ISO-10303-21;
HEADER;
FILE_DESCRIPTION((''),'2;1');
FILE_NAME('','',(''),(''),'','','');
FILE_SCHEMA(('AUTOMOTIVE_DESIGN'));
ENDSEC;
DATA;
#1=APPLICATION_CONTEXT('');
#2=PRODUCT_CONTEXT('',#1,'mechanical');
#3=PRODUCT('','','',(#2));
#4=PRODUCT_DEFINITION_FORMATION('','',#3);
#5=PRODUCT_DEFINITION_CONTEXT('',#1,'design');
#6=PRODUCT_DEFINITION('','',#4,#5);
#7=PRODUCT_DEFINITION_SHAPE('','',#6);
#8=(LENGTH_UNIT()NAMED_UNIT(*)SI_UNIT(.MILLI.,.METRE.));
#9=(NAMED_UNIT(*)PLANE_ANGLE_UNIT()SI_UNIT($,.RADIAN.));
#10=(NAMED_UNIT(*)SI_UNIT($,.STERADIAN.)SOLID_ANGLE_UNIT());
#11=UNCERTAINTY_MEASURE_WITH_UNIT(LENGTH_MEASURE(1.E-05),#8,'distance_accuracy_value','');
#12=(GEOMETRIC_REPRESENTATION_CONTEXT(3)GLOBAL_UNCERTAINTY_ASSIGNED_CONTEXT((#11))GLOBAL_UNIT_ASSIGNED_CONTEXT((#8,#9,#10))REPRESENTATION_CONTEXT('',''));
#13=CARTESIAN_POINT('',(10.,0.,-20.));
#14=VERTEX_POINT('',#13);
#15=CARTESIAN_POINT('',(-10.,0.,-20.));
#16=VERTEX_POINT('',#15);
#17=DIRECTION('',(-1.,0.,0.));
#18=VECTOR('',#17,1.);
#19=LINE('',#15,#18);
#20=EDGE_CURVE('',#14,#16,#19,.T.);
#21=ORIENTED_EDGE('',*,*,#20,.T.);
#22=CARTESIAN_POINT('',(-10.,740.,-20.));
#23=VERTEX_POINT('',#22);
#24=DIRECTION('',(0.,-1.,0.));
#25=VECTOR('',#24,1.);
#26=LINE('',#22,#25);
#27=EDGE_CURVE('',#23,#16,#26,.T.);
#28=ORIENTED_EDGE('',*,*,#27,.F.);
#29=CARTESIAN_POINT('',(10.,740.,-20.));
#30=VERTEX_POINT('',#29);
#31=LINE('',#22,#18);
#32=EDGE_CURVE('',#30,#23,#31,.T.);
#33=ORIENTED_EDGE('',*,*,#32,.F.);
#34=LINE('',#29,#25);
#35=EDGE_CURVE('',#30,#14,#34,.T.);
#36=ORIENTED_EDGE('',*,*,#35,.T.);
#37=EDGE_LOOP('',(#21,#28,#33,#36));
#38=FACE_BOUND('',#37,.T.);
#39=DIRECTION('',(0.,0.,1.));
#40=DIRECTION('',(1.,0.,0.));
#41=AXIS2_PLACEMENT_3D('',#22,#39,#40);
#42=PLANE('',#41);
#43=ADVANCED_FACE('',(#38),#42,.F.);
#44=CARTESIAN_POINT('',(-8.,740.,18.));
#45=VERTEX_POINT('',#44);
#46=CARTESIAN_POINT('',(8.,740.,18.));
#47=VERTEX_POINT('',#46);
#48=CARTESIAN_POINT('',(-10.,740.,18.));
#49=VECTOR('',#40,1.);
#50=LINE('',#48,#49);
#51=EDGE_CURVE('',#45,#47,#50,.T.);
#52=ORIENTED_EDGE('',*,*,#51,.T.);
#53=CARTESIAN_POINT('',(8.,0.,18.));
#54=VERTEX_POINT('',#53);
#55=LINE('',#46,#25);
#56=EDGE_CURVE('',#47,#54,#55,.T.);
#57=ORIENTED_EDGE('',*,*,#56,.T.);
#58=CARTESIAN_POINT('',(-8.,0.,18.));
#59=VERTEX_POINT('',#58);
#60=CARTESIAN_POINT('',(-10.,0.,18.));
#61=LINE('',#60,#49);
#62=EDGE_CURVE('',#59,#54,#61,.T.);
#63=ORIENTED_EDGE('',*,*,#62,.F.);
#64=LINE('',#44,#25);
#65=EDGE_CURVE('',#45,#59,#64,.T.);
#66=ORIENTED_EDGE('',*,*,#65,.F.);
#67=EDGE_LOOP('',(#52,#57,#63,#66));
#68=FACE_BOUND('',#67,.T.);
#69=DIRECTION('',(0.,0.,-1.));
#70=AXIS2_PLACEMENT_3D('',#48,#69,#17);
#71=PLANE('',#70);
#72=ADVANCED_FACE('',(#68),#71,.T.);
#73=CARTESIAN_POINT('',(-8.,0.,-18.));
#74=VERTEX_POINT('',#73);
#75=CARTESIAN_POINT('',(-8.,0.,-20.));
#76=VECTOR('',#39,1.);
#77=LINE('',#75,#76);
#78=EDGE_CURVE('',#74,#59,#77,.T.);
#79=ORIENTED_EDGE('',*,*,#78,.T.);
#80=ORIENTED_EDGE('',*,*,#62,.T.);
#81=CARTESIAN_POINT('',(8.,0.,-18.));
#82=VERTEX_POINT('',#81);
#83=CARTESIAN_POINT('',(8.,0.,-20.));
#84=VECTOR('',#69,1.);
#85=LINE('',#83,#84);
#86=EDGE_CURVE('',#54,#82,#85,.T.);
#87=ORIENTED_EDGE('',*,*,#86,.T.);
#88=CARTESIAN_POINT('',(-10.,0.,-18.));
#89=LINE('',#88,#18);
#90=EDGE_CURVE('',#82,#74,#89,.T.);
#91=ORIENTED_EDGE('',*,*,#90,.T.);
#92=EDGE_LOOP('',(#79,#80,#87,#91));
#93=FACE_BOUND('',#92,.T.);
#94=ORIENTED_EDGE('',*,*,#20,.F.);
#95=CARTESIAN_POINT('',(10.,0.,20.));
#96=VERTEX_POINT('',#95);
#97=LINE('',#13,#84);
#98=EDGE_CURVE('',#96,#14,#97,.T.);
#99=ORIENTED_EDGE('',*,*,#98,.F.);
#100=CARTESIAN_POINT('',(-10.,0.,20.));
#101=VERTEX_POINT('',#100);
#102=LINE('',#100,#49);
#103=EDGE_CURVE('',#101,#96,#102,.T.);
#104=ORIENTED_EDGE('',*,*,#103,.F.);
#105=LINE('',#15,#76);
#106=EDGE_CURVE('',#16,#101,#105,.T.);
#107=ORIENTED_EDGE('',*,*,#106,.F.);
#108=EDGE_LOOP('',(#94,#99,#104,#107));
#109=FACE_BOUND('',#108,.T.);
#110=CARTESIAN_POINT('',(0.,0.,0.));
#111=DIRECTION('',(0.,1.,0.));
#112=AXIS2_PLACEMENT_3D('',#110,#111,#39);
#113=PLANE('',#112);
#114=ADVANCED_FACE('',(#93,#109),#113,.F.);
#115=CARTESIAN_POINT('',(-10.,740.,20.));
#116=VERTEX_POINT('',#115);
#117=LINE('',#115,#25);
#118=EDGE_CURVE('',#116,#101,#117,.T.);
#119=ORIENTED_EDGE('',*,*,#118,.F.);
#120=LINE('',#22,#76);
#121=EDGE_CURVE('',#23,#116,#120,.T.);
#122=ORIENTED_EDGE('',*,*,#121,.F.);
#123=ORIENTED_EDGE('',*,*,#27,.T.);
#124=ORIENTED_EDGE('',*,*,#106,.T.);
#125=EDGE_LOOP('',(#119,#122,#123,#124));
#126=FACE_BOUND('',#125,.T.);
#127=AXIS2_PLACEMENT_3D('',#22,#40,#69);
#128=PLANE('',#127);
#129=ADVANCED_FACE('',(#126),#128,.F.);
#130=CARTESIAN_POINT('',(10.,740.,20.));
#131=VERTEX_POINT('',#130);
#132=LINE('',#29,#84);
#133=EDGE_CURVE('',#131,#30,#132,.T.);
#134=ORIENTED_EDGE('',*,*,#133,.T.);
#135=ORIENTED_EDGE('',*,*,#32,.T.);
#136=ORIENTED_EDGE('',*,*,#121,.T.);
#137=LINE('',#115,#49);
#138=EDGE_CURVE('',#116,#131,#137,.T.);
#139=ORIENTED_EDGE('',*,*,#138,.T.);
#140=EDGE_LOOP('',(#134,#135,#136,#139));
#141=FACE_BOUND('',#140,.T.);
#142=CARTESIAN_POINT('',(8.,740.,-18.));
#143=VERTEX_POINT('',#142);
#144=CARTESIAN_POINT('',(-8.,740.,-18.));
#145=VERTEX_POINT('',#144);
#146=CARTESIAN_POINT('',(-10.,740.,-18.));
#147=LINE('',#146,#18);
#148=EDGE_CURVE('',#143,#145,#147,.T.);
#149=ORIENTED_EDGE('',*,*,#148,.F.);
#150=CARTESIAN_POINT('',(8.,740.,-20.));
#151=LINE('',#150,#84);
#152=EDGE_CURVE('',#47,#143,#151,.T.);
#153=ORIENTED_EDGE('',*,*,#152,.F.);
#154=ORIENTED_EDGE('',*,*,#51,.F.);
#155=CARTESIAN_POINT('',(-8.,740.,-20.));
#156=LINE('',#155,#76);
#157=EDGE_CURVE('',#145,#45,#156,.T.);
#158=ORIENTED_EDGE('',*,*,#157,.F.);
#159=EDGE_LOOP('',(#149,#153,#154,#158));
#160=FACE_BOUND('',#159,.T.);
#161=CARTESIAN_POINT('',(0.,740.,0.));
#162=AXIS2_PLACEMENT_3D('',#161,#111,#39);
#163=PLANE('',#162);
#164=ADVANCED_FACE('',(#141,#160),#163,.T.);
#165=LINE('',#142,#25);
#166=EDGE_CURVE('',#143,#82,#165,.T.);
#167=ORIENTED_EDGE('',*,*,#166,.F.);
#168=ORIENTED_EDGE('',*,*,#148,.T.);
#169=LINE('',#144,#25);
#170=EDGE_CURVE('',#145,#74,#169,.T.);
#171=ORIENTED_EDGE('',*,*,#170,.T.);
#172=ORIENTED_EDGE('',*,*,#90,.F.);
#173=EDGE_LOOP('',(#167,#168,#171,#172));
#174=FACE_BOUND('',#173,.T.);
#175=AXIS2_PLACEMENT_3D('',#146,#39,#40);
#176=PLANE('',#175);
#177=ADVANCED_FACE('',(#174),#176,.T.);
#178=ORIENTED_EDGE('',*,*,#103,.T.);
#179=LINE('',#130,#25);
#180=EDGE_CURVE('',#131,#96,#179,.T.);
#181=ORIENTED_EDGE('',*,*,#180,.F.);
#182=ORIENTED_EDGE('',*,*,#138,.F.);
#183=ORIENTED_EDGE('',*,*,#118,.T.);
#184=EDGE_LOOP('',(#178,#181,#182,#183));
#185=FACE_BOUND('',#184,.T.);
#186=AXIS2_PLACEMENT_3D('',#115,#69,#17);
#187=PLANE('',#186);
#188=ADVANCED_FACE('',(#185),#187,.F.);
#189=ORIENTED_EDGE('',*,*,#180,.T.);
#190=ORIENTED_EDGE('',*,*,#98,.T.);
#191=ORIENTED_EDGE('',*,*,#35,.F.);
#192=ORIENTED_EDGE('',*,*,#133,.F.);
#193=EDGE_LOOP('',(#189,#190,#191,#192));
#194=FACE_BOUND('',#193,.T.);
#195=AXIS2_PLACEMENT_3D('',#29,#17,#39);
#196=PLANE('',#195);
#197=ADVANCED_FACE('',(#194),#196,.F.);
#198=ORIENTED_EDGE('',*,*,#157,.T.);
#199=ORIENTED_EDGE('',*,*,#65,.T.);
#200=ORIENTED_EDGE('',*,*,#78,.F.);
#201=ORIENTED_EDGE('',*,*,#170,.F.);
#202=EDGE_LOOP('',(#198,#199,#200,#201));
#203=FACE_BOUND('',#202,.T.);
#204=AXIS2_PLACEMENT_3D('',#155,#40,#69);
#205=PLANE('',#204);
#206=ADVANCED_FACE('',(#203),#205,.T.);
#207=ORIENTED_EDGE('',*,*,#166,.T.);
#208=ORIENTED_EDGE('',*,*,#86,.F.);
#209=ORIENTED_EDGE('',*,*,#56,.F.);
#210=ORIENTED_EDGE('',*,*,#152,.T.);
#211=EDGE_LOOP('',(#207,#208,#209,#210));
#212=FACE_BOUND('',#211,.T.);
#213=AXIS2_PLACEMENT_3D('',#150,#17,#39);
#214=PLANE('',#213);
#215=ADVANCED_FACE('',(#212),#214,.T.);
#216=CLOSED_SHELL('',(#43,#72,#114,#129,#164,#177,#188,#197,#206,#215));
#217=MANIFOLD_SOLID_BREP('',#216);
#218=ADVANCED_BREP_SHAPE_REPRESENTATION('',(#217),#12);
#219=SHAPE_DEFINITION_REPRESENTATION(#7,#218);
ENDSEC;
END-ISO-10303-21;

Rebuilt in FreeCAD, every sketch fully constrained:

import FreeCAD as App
import Part
import Sketcher
Q = App.Units.Quantity

doc = App.newDocument("Part")
body = doc.addObject("PartDesign::Body", "Body")

# Sketch on XZ plane
sketch1 = body.newObject("Sketcher::SketchObject", "Sketch")
sketch1.AttachmentSupport = (doc.getObject("XZ_Plane"), [""])
sketch1.MapMode = "FlatFace"
sketch1.addGeometry(Part.LineSegment(App.Vector(-10, -20, 0), App.Vector(-10, 20, 0)), False)
sketch1.addGeometry(Part.LineSegment(App.Vector(-10, 20, 0), App.Vector(10, 20, 0)), False)
sketch1.addGeometry(Part.LineSegment(App.Vector(10, 20, 0), App.Vector(10, -20, 0)), False)
sketch1.addGeometry(Part.LineSegment(App.Vector(10, -20, 0), App.Vector(-10, -20, 0)), False)
sketch1.addGeometry(Part.LineSegment(App.Vector(8, 18, 0), App.Vector(-8, 18, 0)), False)
sketch1.addGeometry(Part.LineSegment(App.Vector(-8, 18, 0), App.Vector(-8, -18, 0)), False)
sketch1.addGeometry(Part.LineSegment(App.Vector(-8, -18, 0), App.Vector(8, -18, 0)), False)
sketch1.addGeometry(Part.LineSegment(App.Vector(8, -18, 0), App.Vector(8, 18, 0)), False)
sketch1.addConstraint(Sketcher.Constraint("Coincident", 0, 2, 1, 1))
sketch1.addConstraint(Sketcher.Constraint("Coincident", 1, 2, 2, 1))
sketch1.addConstraint(Sketcher.Constraint("Coincident", 2, 2, 3, 1))
sketch1.addConstraint(Sketcher.Constraint("Coincident", 3, 2, 0, 1))
sketch1.addConstraint(Sketcher.Constraint("Coincident", 4, 2, 5, 1))
sketch1.addConstraint(Sketcher.Constraint("Coincident", 5, 2, 6, 1))
sketch1.addConstraint(Sketcher.Constraint("Coincident", 6, 2, 7, 1))
sketch1.addConstraint(Sketcher.Constraint("Coincident", 7, 2, 4, 1))
sketch1.addConstraint(Sketcher.Constraint("Vertical", 0))
sketch1.addConstraint(Sketcher.Constraint("Horizontal", 1))
sketch1.addConstraint(Sketcher.Constraint("Vertical", 2))
sketch1.addConstraint(Sketcher.Constraint("Horizontal", 3))
sketch1.addConstraint(Sketcher.Constraint("Horizontal", 4))
sketch1.addConstraint(Sketcher.Constraint("Vertical", 5))
sketch1.addConstraint(Sketcher.Constraint("Horizontal", 6))
sketch1.addConstraint(Sketcher.Constraint("Vertical", 7))
sketch1.addConstraint(Sketcher.Constraint("Symmetric", 0, 2, 2, 2, -1, 1))
sketch1.addConstraint(Sketcher.Constraint("Symmetric", 4, 2, 6, 2, -1, 1))
sketch1.addConstraint(Sketcher.Constraint("DistanceX", 1, 1, 1, 2, Q("20 mm")))
sketch1.addConstraint(Sketcher.Constraint("DistanceX", 4, 2, 4, 1, Q("16 mm")))
sketch1.addConstraint(Sketcher.Constraint("DistanceY", 0, 1, 0, 2, Q("40 mm")))
sketch1.addConstraint(Sketcher.Constraint("DistanceY", 5, 2, 5, 1, Q("36 mm")))
pad1 = body.newObject("PartDesign::Pad", "Pad")
pad1.Profile = sketch1
pad1.Length = 740
pad1.Reversed = True

doc.recompute()
